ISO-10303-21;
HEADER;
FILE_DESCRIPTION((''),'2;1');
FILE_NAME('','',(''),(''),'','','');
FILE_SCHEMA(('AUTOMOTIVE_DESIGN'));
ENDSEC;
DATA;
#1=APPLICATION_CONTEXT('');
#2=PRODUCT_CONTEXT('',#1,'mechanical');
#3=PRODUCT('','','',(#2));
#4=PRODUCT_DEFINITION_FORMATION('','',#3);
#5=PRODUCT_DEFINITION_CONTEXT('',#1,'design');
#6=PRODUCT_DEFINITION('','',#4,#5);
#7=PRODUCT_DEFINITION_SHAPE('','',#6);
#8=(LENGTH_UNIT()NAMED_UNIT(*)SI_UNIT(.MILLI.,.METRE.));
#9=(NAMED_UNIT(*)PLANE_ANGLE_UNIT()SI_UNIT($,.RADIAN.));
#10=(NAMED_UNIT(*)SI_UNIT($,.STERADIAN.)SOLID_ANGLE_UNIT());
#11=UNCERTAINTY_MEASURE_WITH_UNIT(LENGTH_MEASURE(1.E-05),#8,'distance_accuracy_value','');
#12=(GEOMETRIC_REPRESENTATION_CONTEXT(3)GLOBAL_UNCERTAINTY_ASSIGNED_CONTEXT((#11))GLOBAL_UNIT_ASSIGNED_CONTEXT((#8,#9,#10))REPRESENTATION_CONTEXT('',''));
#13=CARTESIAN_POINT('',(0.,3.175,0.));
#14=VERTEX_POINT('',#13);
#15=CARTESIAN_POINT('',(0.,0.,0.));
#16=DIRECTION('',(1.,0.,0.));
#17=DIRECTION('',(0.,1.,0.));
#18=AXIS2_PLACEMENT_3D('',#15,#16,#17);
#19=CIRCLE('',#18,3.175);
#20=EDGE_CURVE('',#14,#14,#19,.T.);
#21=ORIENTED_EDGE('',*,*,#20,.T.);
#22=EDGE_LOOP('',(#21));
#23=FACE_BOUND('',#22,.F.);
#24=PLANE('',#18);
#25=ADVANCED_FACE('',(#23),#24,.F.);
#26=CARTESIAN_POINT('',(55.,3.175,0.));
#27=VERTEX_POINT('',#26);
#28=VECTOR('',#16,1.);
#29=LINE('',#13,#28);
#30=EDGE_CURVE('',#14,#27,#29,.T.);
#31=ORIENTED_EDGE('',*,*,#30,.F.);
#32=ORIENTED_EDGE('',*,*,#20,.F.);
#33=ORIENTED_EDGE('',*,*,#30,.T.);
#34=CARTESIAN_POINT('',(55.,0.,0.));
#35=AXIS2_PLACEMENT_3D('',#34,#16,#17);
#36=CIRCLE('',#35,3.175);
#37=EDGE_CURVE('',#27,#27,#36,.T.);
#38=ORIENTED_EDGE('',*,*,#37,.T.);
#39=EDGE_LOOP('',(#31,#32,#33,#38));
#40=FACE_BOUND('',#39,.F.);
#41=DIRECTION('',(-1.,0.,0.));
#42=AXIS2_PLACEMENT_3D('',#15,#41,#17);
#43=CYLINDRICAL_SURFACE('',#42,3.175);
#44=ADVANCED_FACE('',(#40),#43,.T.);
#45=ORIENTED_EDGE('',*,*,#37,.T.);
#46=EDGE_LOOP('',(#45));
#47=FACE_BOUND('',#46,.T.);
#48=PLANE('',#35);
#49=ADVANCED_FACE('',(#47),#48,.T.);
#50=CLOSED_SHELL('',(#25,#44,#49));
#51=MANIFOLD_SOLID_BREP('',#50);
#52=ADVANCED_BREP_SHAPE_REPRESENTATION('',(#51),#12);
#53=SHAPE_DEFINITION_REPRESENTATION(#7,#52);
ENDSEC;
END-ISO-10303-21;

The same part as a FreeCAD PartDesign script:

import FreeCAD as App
import Part
import Sketcher
Q = App.Units.Quantity

doc = App.newDocument("Part")
body = doc.addObject("PartDesign::Body", "Body")

# Sketch on YZ plane
sketch1 = body.newObject("Sketcher::SketchObject", "Sketch")
sketch1.AttachmentSupport = (doc.getObject("YZ_Plane"), [""])
sketch1.MapMode = "FlatFace"
sketch1.addGeometry(Part.Circle(App.Vector(0, 0, 0), App.Vector(0, 0, 1), 3.2), False)
sketch1.addConstraint([
    Sketcher.Constraint("Coincident", 0, 3, -1, 1),
    Sketcher.Constraint("Diameter", 0, Q("6.35 mm")),
])
pad1 = body.newObject("PartDesign::Pad", "Pad")
pad1.Profile = sketch1
pad1.Length = 55

doc.recompute()
